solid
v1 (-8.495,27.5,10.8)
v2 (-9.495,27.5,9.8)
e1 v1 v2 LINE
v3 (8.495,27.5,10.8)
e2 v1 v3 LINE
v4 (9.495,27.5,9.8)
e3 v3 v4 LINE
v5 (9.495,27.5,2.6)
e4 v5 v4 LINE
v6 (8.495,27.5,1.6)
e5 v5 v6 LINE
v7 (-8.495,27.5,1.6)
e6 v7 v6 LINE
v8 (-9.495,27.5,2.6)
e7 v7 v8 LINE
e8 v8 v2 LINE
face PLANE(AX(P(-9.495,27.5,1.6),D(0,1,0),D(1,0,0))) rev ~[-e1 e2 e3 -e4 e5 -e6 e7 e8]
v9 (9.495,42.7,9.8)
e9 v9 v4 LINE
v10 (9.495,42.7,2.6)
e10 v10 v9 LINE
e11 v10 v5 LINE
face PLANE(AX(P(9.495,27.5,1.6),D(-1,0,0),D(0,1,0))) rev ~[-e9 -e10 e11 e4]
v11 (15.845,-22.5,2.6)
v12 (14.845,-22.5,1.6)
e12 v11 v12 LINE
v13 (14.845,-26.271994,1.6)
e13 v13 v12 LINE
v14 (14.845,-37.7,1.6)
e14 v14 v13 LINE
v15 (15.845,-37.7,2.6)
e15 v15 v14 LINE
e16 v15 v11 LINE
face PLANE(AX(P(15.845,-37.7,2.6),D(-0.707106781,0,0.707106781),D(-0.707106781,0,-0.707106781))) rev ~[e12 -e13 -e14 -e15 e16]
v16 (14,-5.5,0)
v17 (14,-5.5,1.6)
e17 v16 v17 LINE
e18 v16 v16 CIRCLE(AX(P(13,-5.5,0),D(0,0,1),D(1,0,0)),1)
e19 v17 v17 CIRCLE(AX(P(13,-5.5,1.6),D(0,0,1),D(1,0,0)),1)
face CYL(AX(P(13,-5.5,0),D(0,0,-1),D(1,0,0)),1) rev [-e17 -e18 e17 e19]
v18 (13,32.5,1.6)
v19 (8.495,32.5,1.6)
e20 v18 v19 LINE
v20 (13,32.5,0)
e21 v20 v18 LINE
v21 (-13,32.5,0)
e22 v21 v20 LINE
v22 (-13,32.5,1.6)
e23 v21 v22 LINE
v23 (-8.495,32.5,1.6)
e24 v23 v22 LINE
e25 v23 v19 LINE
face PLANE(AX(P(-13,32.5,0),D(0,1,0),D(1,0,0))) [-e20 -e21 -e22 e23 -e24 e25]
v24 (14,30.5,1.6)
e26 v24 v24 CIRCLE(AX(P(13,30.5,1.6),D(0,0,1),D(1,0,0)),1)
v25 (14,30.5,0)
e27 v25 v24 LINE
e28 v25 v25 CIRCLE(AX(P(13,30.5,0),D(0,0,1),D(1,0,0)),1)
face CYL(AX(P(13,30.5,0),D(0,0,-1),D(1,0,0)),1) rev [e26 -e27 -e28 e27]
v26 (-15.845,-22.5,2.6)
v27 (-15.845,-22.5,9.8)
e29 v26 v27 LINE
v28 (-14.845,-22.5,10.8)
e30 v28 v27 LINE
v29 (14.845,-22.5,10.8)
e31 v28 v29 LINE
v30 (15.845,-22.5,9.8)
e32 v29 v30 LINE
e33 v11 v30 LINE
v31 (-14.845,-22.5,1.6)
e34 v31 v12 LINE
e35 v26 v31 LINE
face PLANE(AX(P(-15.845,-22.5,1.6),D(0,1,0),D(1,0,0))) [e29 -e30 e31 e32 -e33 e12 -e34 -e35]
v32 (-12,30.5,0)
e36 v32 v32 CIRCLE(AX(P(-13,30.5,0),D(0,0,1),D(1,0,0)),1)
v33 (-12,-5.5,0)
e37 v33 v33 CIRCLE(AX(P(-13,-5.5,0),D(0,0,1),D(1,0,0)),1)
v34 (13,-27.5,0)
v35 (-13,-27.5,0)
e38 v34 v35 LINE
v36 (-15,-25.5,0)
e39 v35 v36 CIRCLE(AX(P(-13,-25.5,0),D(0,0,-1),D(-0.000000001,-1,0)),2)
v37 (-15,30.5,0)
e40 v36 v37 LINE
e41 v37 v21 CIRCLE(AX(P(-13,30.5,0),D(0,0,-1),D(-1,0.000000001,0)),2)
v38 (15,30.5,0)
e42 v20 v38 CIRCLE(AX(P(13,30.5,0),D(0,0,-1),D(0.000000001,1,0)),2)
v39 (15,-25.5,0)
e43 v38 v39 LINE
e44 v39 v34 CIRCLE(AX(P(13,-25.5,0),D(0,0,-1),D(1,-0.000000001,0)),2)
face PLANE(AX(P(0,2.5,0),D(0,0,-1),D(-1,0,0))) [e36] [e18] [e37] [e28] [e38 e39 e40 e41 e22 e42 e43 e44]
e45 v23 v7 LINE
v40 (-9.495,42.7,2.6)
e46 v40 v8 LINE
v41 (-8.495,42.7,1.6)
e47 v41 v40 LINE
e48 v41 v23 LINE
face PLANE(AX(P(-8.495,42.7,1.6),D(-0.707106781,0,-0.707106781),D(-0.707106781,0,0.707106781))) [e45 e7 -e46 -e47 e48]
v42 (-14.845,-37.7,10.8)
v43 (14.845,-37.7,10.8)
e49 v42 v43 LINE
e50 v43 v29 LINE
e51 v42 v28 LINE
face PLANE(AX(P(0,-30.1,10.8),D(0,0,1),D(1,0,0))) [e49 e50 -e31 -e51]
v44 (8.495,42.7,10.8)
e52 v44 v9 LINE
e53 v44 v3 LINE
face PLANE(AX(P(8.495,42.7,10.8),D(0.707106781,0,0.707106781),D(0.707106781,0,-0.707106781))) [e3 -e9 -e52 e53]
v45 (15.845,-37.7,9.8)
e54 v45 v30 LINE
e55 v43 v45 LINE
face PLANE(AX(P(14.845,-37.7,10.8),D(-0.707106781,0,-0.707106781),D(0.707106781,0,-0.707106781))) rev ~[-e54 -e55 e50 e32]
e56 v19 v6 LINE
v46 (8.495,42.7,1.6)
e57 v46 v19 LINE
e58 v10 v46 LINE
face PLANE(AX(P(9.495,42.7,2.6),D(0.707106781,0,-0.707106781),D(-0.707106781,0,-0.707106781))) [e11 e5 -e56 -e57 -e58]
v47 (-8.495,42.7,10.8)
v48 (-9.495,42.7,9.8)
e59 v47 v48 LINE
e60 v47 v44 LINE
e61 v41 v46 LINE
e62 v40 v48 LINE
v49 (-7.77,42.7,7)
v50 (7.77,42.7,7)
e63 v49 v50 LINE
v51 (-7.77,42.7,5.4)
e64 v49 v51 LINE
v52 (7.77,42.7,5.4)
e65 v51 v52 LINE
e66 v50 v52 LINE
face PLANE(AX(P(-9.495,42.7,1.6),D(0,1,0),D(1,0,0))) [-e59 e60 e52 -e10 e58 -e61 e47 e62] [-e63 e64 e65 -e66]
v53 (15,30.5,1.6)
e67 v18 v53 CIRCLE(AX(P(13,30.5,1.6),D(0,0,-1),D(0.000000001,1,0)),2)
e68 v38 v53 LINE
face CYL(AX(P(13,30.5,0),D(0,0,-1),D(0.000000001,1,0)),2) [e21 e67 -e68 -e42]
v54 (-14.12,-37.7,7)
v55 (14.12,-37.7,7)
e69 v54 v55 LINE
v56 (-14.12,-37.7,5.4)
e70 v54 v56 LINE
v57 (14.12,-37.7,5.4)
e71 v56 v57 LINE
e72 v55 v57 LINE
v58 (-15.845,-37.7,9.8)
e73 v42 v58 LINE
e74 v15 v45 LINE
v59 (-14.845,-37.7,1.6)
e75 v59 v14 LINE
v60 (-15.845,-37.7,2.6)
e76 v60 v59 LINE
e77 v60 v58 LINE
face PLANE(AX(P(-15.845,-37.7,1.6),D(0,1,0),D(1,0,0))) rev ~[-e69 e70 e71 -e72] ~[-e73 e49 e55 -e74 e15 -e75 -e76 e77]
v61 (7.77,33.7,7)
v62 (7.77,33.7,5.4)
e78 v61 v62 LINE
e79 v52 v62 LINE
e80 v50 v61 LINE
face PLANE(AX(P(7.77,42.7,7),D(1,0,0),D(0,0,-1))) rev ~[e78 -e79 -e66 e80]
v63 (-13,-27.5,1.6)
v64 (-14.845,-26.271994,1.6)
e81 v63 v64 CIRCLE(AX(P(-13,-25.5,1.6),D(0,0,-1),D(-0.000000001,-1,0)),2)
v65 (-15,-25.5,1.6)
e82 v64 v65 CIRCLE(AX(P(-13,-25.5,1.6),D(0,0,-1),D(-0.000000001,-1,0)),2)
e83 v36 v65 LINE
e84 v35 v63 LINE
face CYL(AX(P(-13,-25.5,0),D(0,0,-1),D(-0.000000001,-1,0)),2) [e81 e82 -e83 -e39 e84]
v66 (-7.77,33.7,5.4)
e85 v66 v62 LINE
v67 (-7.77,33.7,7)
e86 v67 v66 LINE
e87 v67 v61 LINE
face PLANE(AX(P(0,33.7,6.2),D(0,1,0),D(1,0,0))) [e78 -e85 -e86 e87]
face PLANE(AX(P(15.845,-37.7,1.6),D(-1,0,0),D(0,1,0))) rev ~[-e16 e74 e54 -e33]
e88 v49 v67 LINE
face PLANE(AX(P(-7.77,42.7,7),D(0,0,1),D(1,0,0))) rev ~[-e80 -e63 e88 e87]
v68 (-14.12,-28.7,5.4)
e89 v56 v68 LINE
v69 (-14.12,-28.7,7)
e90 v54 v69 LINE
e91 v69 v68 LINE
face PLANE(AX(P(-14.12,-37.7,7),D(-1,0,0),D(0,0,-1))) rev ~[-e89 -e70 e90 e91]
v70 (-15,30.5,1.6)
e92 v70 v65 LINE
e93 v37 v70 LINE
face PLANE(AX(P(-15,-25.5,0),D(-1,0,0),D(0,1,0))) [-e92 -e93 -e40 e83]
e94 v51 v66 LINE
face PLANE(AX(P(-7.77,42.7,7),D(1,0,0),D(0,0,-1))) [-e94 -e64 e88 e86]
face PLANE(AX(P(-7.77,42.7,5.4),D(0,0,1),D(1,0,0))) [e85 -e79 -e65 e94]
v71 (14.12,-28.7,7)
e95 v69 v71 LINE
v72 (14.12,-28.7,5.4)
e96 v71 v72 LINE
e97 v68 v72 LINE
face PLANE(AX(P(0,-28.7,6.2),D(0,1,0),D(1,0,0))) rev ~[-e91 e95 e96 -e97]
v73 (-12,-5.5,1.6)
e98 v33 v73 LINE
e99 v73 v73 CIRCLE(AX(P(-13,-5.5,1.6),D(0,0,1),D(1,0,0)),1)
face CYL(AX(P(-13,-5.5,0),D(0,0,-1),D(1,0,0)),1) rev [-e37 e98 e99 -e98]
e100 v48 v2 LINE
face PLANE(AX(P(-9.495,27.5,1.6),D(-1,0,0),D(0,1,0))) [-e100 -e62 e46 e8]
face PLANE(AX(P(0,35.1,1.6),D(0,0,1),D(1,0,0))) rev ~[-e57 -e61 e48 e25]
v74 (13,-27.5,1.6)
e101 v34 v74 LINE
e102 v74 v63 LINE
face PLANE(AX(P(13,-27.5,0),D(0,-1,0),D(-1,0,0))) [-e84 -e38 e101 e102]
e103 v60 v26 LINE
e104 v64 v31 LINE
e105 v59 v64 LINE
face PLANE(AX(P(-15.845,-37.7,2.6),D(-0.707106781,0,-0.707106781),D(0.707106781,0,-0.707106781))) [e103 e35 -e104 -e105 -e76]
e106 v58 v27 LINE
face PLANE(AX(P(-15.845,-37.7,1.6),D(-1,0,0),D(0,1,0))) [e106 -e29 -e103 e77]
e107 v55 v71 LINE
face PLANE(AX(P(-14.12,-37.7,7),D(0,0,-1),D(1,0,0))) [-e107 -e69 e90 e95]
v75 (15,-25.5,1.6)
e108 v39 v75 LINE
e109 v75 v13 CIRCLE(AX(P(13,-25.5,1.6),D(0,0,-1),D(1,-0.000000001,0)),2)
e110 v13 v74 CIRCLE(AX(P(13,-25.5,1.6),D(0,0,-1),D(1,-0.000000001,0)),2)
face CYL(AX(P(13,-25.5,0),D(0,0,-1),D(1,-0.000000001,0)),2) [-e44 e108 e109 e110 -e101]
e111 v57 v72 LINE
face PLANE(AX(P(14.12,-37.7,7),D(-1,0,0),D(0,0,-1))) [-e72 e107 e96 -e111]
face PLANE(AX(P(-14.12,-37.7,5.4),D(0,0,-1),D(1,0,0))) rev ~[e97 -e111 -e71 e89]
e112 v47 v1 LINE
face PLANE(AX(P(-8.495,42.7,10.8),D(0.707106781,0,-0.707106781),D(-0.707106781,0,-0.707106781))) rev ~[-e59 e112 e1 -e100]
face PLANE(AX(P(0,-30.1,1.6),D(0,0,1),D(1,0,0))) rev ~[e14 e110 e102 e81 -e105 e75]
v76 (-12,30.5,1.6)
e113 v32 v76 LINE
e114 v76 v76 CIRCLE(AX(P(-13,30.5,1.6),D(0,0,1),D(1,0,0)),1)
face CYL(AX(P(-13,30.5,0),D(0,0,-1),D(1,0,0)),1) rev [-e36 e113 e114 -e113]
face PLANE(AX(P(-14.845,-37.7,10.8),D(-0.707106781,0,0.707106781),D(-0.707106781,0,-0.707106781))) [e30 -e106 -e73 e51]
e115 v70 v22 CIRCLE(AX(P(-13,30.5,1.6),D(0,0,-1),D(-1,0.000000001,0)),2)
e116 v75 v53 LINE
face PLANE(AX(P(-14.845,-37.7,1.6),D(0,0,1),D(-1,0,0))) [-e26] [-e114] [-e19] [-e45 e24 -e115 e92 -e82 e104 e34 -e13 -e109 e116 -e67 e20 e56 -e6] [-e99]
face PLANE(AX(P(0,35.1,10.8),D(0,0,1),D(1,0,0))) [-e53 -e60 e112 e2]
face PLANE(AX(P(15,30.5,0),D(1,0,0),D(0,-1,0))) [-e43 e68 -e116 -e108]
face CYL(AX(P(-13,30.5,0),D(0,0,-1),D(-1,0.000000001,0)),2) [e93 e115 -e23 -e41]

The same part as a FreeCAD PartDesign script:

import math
import FreeCAD as App
import Part
import Sketcher


def add_polygon(sketch, points):
    """Adds a closed chain of lines whose ends are joined by coincident constraints."""
    first, n = sketch.GeometryCount, len(points)
    for a, b in zip(points, points[1:] + points[:1]):
        sketch.addGeometry(Part.LineSegment(App.Vector(*a, 0), App.Vector(*b, 0)), False)
    for i in range(n):
        sketch.addConstraint(Sketcher.Constraint("Coincident", first + i, 2, first + (i + 1) % n, 1))

doc = App.newDocument("Part")
body = doc.addObject("PartDesign::Body", "Body")

# Sketch on XY plane
sketch1 = body.newObject("Sketcher::SketchObject", "Sketch")
sketch1.AttachmentSupport = (doc.getObject("XY_Plane"), [""])
sketch1.MapMode = "FlatFace"
sketch1.addGeometry([
    Part.LineSegment(App.Vector(13, 32.5, 0), App.Vector(-13, 32.5, 0)),  # 0
    Part.ArcOfCircle(Part.Circle(App.Vector(-13, 30.5, 0), App.Vector(0, 0, 1), 2), math.radians(90), math.radians(180)),  # 1
    Part.LineSegment(App.Vector(-15, 30.5, 0), App.Vector(-15, -25.5, 0)),  # 2
    Part.ArcOfCircle(Part.Circle(App.Vector(-13, -25.5, 0), App.Vector(0, 0, 1), 2), math.radians(-180), math.radians(-90)),  # 3
    Part.LineSegment(App.Vector(-13, -27.5, 0), App.Vector(13, -27.5, 0)),  # 4
    Part.ArcOfCircle(Part.Circle(App.Vector(13, -25.5, 0), App.Vector(0, 0, 1), 2), math.radians(-90), math.radians(0)),  # 5
    Part.LineSegment(App.Vector(15, -25.5, 0), App.Vector(15, 30.5, 0)),  # 6
    Part.ArcOfCircle(Part.Circle(App.Vector(13, 30.5, 0), App.Vector(0, 0, 1), 2), math.radians(0), math.radians(90)),  # 7
    Part.Circle(App.Vector(13, 30.5, 0), App.Vector(0, 0, 1), 1),  # 8
    Part.Circle(App.Vector(-13, 30.5, 0), App.Vector(0, 0, 1), 1),  # 9
], False)
sketch1.addConstraint([
    Sketcher.Constraint("Tangent", 0, 2, 1, 1),
    Sketcher.Constraint("Tangent", 1, 2, 2, 1),
    Sketcher.Constraint("Tangent", 2, 2, 3, 1),
    Sketcher.Constraint("Tangent", 3, 2, 4, 1),
    Sketcher.Constraint("Tangent", 4, 2, 5, 1),
    Sketcher.Constraint("Tangent", 5, 2, 6, 1),
    Sketcher.Constraint("Tangent", 6, 2, 7, 1),
    Sketcher.Constraint("Tangent", 7, 2, 0, 1),
    Sketcher.Constraint("Horizontal", 0),
    Sketcher.Constraint("Vertical", 2),
    Sketcher.Constraint("Horizontal", 4),
    Sketcher.Constraint("Vertical", 6),
    Sketcher.Constraint("Coincident", 8, 3, 7, 3),
    Sketcher.Constraint("Coincident", 9, 3, 1, 3),
    Sketcher.Constraint("Equal", 1, 3),
    Sketcher.Constraint("Equal", 3, 5),
    Sketcher.Constraint("Equal", 5, 7),
    Sketcher.Constraint("Equal", 8, 9),
    Sketcher.Constraint("Diameter", 8, 2.0),
    Sketcher.Constraint("Radius", 1, 2.0),
    Sketcher.Constraint("DistanceX", 0, 2, 0, 1, 26.0),
    Sketcher.Constraint("DistanceY", 2, 2, 2, 1, 56.0),
    Sketcher.Constraint("DistanceX", 1, 3, -1, 1, 13.0),
    Sketcher.Constraint("DistanceY", -1, 1, 1, 3, 30.5),
])
pad1 = body.newObject("PartDesign::Pad", "Pad")
pad1.Profile = sketch1
pad1.Length = 1.6

# Sketch on XY plane
sketch2 = body.newObject("Sketcher::SketchObject", "Sketch001")
sketch2.AttachmentSupport = (doc.getObject("XY_Plane"), [""])
sketch2.MapMode = "FlatFace"
sketch2.addGeometry([
    Part.Circle(App.Vector(-13, -5.5, 0), App.Vector(0, 0, 1), 1),
    Part.Circle(App.Vector(13, -5.5, 0), App.Vector(0, 0, 1), 1),
], False)
sketch2.addConstraint([
    Sketcher.Constraint("Equal", 0, 1),
    Sketcher.Constraint("Symmetric", 0, 3, 1, 3, -2),
    Sketcher.Constraint("Diameter", 0, 2.0),
    Sketcher.Constraint("DistanceX", 0, 3, -1, 1, 13.0),
    Sketcher.Constraint("DistanceY", 0, 3, -1, 1, 5.5),
])
pocket1 = body.newObject("PartDesign::Pocket", "Pocket")
pocket1.Profile = sketch2
pocket1.Length = 1.6
pocket1.Reversed = True

# Sketch on XY plane
sketch3 = body.newObject("Sketcher::SketchObject", "Sketch002")
sketch3.AttachmentSupport = (doc.getObject("XY_Plane"), [""])
sketch3.MapMode = "FlatFace"
sketch3.AttachmentOffset = App.Placement(App.Vector(0, 0, 1.6), App.Rotation())
add_polygon(sketch3, [(-9, 43), (-9, 28), (9, 28), (9, 43)])  # lines 0-3
sketch3.addConstraint([
    Sketcher.Constraint("Vertical", 0),
    Sketcher.Constraint("Horizontal", 1),
    Sketcher.Constraint("Vertical", 2),
    Sketcher.Constraint("Horizontal", 3),
    Sketcher.Constraint("DistanceY", 0, 2, 0, 1, 15.2),
    Sketcher.Constraint("DistanceX", 1, 1, 1, 2, 18.99),
    Sketcher.Constraint("DistanceY", -1, 1, 0, 2, 27.5),
    Sketcher.Constraint("DistanceX", 0, 2, -1, 1, 9.495),
])
pad2 = body.newObject("PartDesign::Pad", "Pad001")
pad2.Profile = sketch3
pad2.Length = 9.2

# Sketch on XZ plane
sketch4 = body.newObject("Sketcher::SketchObject", "Sketch003")
sketch4.AttachmentSupport = (doc.getObject("XZ_Plane"), [""])
sketch4.MapMode = "FlatFace"
sketch4.AttachmentOffset = App.Placement(App.Vector(0, 0, -42.7), App.Rotation())
add_polygon(sketch4, [(-9.5, 10.8), (-8.5, 10.8), (-9.5, 9.8)])  # lines 0-2
add_polygon(sketch4, [(8.5, 10.8), (9.5, 10.8), (9.5, 9.8)])  # lines 3-5
add_polygon(sketch4, [(9.5, 2.6), (9.5, 1.6), (8.5, 1.6)])  # lines 6-8
add_polygon(sketch4, [(-8.5, 1.6), (-9.5, 1.6), (-9.5, 2.6)])  # lines 9-11
sketch4.addConstraint([
    Sketcher.Constraint("Horizontal", 0),
    Sketcher.Constraint("Vertical", 2),
    Sketcher.Constraint("Horizontal", 3),
    Sketcher.Constraint("Vertical", 4),
    Sketcher.Constraint("Vertical", 6),
    Sketcher.Constraint("Horizontal", 7),
    Sketcher.Constraint("Horizontal", 9),
    Sketcher.Constraint("Vertical", 10),
    Sketcher.Constraint("Symmetric", 2, 2, 3, 2, -2),
    Sketcher.Constraint("Symmetric", 6, 2, 9, 2, -2),
    Sketcher.Constraint("Perpendicular", 1, 5),
    Sketcher.Constraint("Perpendicular", 5, 8),
    Sketcher.Constraint("Perpendicular", 8, 11),
    Sketcher.Constraint("Horizontal", 1, 2, 4, 2),
    Sketcher.Constraint("Horizontal", 8, 2, 10, 2),
    Sketcher.Constraint("Vertical", 4, 2, 6, 2),
    Sketcher.Constraint("Vertical", 5, 2, 7, 2),
    Sketcher.Constraint("Vertical", 0, 2, 11, 2),
    Sketcher.Constraint("DistanceX", 0, 1, 0, 2, 1.0),
    Sketcher.Constraint("DistanceY", -1, 1, 0, 2, 10.8),
    Sketcher.Constraint("DistanceY", -1, 1, 6, 2, 1.6),
    Sketcher.Constraint("DistanceX", 0, 2, 3, 2, 17.99),
])
pocket2 = body.newObject("PartDesign::Pocket", "Pocket001")
pocket2.Profile = sketch4
pocket2.Length = 15.2
pocket2.Reversed = True

# Sketch on XZ plane
sketch5 = body.newObject("Sketcher::SketchObject", "Sketch004")
sketch5.AttachmentSupport = (doc.getObject("XZ_Plane"), [""])
sketch5.MapMode = "FlatFace"
sketch5.AttachmentOffset = App.Placement(App.Vector(0, 0, -42.7), App.Rotation())
add_polygon(sketch5, [(-7.8, 5.4), (-7.8, 7), (7.8, 7), (7.8, 5.4)])  # lines 0-3
sketch5.addConstraint([
    Sketcher.Constraint("Vertical", 0),
    Sketcher.Constraint("Horizontal", 1),
    Sketcher.Constraint("Vertical", 2),
    Sketcher.Constraint("Horizontal", 3),
    Sketcher.Constraint("DistanceY", 0, 1, 0, 2, 1.6),
    Sketcher.Constraint("DistanceY", -1, 1, 0, 2, 7.0),
    Sketcher.Constraint("DistanceX", 1, 1, 1, 2, 15.54),
    Sketcher.Constraint("DistanceX", 0, 2, -1, 1, 7.77),
])
pocket3 = body.newObject("PartDesign::Pocket", "Pocket002")
pocket3.Profile = sketch5
pocket3.Length = 9
pocket3.Reversed = True

# Sketch on XY plane
sketch6 = body.newObject("Sketcher::SketchObject", "Sketch005")
sketch6.AttachmentSupport = (doc.getObject("XY_Plane"), [""])
sketch6.MapMode = "FlatFace"
sketch6.AttachmentOffset = App.Placement(App.Vector(0, 0, 1.6), App.Rotation())
add_polygon(sketch6, [(-16, -22), (-16, -38), (16, -38), (16, -22)])  # lines 0-3
sketch6.addConstraint([
    Sketcher.Constraint("Vertical", 0),
    Sketcher.Constraint("Horizontal", 1),
    Sketcher.Constraint("Vertical", 2),
    Sketcher.Constraint("Horizontal", 3),
    Sketcher.Constraint("DistanceY", 0, 2, 0, 1, 15.2),
    Sketcher.Constraint("DistanceX", 1, 1, 1, 2, 31.69),
    Sketcher.Constraint("DistanceY", 0, 2, -1, 1, 37.7),
    Sketcher.Constraint("DistanceX", 0, 2, -1, 1, 15.845),
])
pad3 = body.newObject("PartDesign::Pad", "Pad002")
pad3.Profile = sketch6
pad3.Length = 9.2

# Sketch on XZ plane
sketch7 = body.newObject("Sketcher::SketchObject", "Sketch006")
sketch7.AttachmentSupport = (doc.getObject("XZ_Plane"), [""])
sketch7.MapMode = "FlatFace"
sketch7.AttachmentOffset = App.Placement(App.Vector(0, 0, 37.7), App.Rotation())
add_polygon(sketch7, [(-14.1, 5.4), (-14.1, 7), (14.1, 7), (14.1, 5.4)])  # lines 0-3
sketch7.addConstraint([
    Sketcher.Constraint("Vertical", 0),
    Sketcher.Constraint("Horizontal", 1),
    Sketcher.Constraint("Vertical", 2),
    Sketcher.Constraint("Horizontal", 3),
    Sketcher.Constraint("DistanceY", 0, 1, 0, 2, 1.6),
    Sketcher.Constraint("DistanceY", -1, 1, 0, 2, 7.0),
    Sketcher.Constraint("DistanceX", 1, 1, 1, 2, 28.24),
    Sketcher.Constraint("DistanceX", 0, 2, -1, 1, 14.12),
])
pocket4 = body.newObject("PartDesign::Pocket", "Pocket003")
pocket4.Profile = sketch7
pocket4.Length = 9

# Sketch on XZ plane
sketch8 = body.newObject("Sketcher::SketchObject", "Sketch007")
sketch8.AttachmentSupport = (doc.getObject("XZ_Plane"), [""])
sketch8.MapMode = "FlatFace"
sketch8.AttachmentOffset = App.Placement(App.Vector(0, 0, 37.7), App.Rotation())
add_polygon(sketch8, [(14.8, 10.8), (15.8, 10.8), (15.8, 9.8)])  # lines 0-2
add_polygon(sketch8, [(-15.8, 10.8), (-14.8, 10.8), (-15.8, 9.8)])  # lines 3-5
add_polygon(sketch8, [(-15.8, 2.6), (-14.8, 1.6), (-15.8, 1.6)])  # lines 6-8
add_polygon(sketch8, [(14.8, 1.6), (15.8, 2.6), (15.8, 1.6)])  # lines 9-11
sketch8.addConstraint([
    Sketcher.Constraint("Horizontal", 0),
    Sketcher.Constraint("Vertical", 1),
    Sketcher.Constraint("Horizontal", 3),
    Sketcher.Constraint("Vertical", 5),
    Sketcher.Constraint("Horizontal", 7),
    Sketcher.Constraint("Vertical", 8),
    Sketcher.Constraint("Vertical", 10),
    Sketcher.Constraint("Horizontal", 11),
    Sketcher.Constraint("Symmetric", 2, 2, 3, 2, -2),
    Sketcher.Constraint("Symmetric", 1, 2, 4, 2, -2),
    Sketcher.Constraint("Symmetric", 8, 2, 9, 2, -2),
    Sketcher.Constraint("Symmetric", 6, 2, 11, 2, -2),
    Sketcher.Constraint("Perpendicular", 2, 4),
    Sketcher.Constraint("Perpendicular", 4, 6),
    Sketcher.Constraint("Vertical", 3, 2, 6, 2),
    Sketcher.Constraint("Vertical", 5, 2, 7, 2),
    Sketcher.Constraint("DistanceX", 0, 1, 0, 2, 1.0),
    Sketcher.Constraint("DistanceY", -1, 1, 0, 2, 10.8),
    Sketcher.Constraint("DistanceY", -1, 1, 6, 2, 1.6),
    Sketcher.Constraint("DistanceX", 3, 2, 2, 2, 29.69),
])
pocket5 = body.newObject("PartDesign::Pocket", "Pocket004")
pocket5.Profile = sketch8
pocket5.Length = 15.2

doc.recompute()
